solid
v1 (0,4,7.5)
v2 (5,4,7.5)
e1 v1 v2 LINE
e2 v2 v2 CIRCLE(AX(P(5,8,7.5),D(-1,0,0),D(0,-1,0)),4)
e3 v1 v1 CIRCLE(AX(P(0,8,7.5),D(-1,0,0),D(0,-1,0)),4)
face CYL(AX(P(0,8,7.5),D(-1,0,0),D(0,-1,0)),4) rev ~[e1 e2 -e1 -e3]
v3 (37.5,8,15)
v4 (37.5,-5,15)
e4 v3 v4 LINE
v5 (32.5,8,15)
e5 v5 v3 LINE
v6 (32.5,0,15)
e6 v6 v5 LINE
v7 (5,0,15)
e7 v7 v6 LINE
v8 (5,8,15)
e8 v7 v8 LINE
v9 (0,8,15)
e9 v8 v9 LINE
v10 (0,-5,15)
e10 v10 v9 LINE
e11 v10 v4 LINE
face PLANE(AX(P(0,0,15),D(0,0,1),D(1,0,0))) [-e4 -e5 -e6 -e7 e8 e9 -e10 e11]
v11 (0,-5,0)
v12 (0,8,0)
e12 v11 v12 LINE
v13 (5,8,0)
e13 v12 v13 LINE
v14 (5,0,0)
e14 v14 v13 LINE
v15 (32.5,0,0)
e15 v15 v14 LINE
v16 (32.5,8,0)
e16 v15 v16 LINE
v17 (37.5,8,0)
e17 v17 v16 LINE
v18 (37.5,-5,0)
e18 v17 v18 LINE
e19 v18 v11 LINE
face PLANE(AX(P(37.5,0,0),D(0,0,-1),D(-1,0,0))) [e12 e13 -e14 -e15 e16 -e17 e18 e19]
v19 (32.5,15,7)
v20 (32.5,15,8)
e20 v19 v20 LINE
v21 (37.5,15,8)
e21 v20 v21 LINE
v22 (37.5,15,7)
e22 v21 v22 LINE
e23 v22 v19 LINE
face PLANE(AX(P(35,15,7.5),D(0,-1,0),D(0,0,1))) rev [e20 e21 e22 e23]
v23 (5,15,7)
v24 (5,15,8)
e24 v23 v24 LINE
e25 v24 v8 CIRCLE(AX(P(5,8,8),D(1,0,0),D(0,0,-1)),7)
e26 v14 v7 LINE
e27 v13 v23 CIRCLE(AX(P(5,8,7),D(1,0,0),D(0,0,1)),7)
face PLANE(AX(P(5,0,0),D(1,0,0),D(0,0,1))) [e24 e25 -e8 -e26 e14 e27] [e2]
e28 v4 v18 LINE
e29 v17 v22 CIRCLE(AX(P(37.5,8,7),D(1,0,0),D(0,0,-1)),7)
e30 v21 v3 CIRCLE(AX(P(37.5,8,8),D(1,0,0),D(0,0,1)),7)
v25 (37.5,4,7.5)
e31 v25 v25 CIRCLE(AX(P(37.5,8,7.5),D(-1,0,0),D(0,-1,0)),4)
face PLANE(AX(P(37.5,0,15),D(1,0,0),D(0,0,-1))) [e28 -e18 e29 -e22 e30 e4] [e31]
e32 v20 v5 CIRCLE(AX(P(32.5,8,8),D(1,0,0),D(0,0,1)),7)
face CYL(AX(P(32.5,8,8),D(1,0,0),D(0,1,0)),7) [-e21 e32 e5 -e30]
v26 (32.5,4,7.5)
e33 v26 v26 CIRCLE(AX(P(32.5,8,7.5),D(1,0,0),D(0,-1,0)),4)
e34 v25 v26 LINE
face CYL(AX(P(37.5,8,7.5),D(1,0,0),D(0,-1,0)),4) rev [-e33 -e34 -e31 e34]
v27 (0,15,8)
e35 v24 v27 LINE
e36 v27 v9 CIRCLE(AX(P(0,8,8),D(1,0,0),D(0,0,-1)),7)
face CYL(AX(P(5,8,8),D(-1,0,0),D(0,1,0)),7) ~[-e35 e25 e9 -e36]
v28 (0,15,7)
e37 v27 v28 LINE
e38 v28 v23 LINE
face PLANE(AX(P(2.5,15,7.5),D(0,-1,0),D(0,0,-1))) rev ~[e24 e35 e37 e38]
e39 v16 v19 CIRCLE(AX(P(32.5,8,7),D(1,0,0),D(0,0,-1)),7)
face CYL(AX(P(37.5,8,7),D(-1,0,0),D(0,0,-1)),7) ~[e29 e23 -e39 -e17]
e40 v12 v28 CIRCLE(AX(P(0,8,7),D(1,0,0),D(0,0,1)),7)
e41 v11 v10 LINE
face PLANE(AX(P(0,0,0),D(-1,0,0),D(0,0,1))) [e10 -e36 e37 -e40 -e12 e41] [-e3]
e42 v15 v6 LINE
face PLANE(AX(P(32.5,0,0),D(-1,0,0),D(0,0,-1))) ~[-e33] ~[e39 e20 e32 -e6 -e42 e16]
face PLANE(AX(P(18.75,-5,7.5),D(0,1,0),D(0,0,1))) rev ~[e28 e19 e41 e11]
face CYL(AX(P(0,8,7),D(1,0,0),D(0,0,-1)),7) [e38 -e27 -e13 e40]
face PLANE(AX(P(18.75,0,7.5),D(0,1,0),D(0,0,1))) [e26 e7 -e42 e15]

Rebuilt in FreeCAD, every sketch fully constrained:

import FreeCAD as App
import Part
import Sketcher

V = App.Vector
Q = App.Units.Quantity


def edges_at(feature, points):
    """Names of the edges that pass closest to the given points."""
    edges = feature.Shape.Edges
    near = lambda p: min(range(len(edges)), key=lambda i: edges[i].distToShape(Part.Vertex(*p))[0])
    return sorted({f"Edge{near(p) + 1}" for p in points})

doc = App.newDocument("Part")
body = doc.addObject("PartDesign::Body", "Body")

sketch1 = body.newObject("Sketcher::SketchObject", "Sketch")
sketch1.AttachmentSupport = (doc.getObject("XZ_Plane"), [""])
sketch1.MapMode = "FlatFace"
sketch1.addGeometry(Part.LineSegment(V(0, 0, 0), V(37.5, 0, 0)), False)
sketch1.addGeometry(Part.LineSegment(V(37.5, 0, 0), V(37.5, 15, 0)), False)
sketch1.addGeometry(Part.LineSegment(V(37.5, 15, 0), V(0, 15, 0)), False)
sketch1.addGeometry(Part.LineSegment(V(0, 15, 0), V(0, 0, 0)), False)
sketch1.addConstraint(Sketcher.Constraint("Coincident", 0, 2, 1, 1))
sketch1.addConstraint(Sketcher.Constraint("Coincident", 1, 2, 2, 1))
sketch1.addConstraint(Sketcher.Constraint("Coincident", 2, 2, 3, 1))
sketch1.addConstraint(Sketcher.Constraint("Coincident", 3, 2, 0, 1))
sketch1.addConstraint(Sketcher.Constraint("Horizontal", 0))
sketch1.addConstraint(Sketcher.Constraint("Vertical", 1))
sketch1.addConstraint(Sketcher.Constraint("Horizontal", 2))
sketch1.addConstraint(Sketcher.Constraint("Vertical", 3))
sketch1.addConstraint(Sketcher.Constraint("Coincident", 3, 2, -1, 1))
sketch1.addConstraint(Sketcher.Constraint("DistanceY", 1, 1, 1, 2, Q("15 mm")))
sketch1.addConstraint(Sketcher.Constraint("DistanceX", 0, 1, 0, 2, Q("37.5 mm")))
pad1 = body.newObject("PartDesign::Pad", "Pad")
pad1.Profile = sketch1
pad1.Length = 5

sketch2 = body.newObject("Sketcher::SketchObject", "Sketch001")
sketch2.AttachmentSupport = (doc.getObject("XZ_Plane"), [""])
sketch2.MapMode = "FlatFace"
sketch2.addGeometry(Part.LineSegment(V(5, 15, 0), V(5, 0, 0)), False)
sketch2.addGeometry(Part.LineSegment(V(5, 0, 0), V(0, 0, 0)), False)
sketch2.addGeometry(Part.LineSegment(V(0, 0, 0), V(0, 15, 0)), False)
sketch2.addGeometry(Part.LineSegment(V(0, 15, 0), V(5, 15, 0)), False)
sketch2.addConstraint(Sketcher.Constraint("Coincident", 0, 2, 1, 1))
sketch2.addConstraint(Sketcher.Constraint("Coincident", 1, 2, 2, 1))
sketch2.addConstraint(Sketcher.Constraint("Coincident", 2, 2, 3, 1))
sketch2.addConstraint(Sketcher.Constraint("Coincident", 3, 2, 0, 1))
sketch2.addConstraint(Sketcher.Constraint("Vertical", 0))
sketch2.addConstraint(Sketcher.Constraint("Horizontal", 1))
sketch2.addConstraint(Sketcher.Constraint("Vertical", 2))
sketch2.addConstraint(Sketcher.Constraint("Horizontal", 3))
sketch2.addConstraint(Sketcher.Constraint("Coincident", 1, 2, -1, 1))
sketch2.addConstraint(Sketcher.Constraint("DistanceX", 1, 2, 1, 1, Q("5 mm")))
sketch2.addConstraint(Sketcher.Constraint("DistanceY", 0, 2, 0, 1, Q("15 mm")))
pad2 = body.newObject("PartDesign::Pad", "Pad001")
pad2.Profile = sketch2
pad2.Length = 15
pad2.Reversed = True

sketch3 = body.newObject("Sketcher::SketchObject", "Sketch002")
sketch3.AttachmentSupport = (doc.getObject("YZ_Plane"), [""])
sketch3.MapMode = "FlatFace"
sketch3.addGeometry(Part.Circle(V(8, 7.5, 0), V(0, 0, 1), 4), False)
sketch3.addConstraint(Sketcher.Constraint("Diameter", 0, Q("8 mm")))
sketch3.addConstraint(Sketcher.Constraint("DistanceX", -1, 1, 0, 3, Q("8 mm")))
sketch3.addConstraint(Sketcher.Constraint("DistanceY", -1, 1, 0, 3, Q("7.5 mm")))
pocket1 = body.newObject("PartDesign::Pocket", "Pocket")
pocket1.Profile = sketch3
pocket1.Type = "ThroughAll"
pocket1.Reversed = True
doc.recompute()

fillet = body.newObject("PartDesign::Fillet", "Fillet")
fillet.Base = (pocket1, edges_at(pocket1, [(2.5, 15, 15), (2.5, 15, 0)]))
fillet.Radius = 7
doc.recompute()

datumplane = body.newObject("PartDesign::Plane", "DatumPlane")
datumplane.AttachmentSupport = (doc.getObject("YZ_Plane"), [""])
datumplane.MapMode = "FlatFace"
datumplane.AttachmentOffset = App.Placement(V(0, 0, 18.75), App.Rotation())
mirrored = body.newObject("PartDesign::Mirrored", "Mirrored")
mirrored.Originals = [pad2, pocket1]
mirrored.MirrorPlane = (datumplane, [""])
body.Tip = mirrored
doc.recompute()

fillet2 = body.newObject("PartDesign::Fillet", "Fillet001")
fillet2.Base = (mirrored, edges_at(mirrored, [(35, 15, 15), (35, 15, 0)]))
fillet2.Radius = 7

doc.recompute()
